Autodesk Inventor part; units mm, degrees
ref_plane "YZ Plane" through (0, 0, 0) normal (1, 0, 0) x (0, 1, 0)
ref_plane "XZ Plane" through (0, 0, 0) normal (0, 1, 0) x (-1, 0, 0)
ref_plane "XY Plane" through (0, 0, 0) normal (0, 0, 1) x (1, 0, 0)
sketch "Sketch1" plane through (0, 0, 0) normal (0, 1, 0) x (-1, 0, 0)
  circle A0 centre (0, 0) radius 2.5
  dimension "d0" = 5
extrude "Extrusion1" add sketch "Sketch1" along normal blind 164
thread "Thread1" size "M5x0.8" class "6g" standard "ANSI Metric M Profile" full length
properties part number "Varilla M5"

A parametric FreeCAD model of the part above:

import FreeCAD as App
import Part
import Sketcher

V = App.Vector

doc = App.newDocument("Part")
params = doc.addObject("Spreadsheet::Sheet", "Params")
for row, (alias, value) in enumerate([
    ("sketch1_diameter", "5 mm"),
    ("pad1_length", "164 mm"),
], start=1):
    params.set(f"A{row}", alias)
    params.set(f"B{row}", "=" + value)
    params.setAlias(f"B{row}", alias)

body = doc.addObject("PartDesign::Body", "Body")

sketch1 = body.newObject("Sketcher::SketchObject", "Sketch")
sketch1.AttachmentSupport = (doc.getObject("XZ_Plane"), [""])
sketch1.MapMode = "FlatFace"
sketch1.addGeometry(Part.Circle(V(0, 0, 0), V(0, 0, 1), 2.5), False)
sketch1.addConstraint([
    Sketcher.Constraint("Coincident", 0, 3, -1, 1),
    Sketcher.Constraint("Diameter", 0, 5.0),
])
sketch1.setExpression("Constraints[1]", "Params.sketch1_diameter")
pad1 = body.newObject("PartDesign::Pad", "Pad")
pad1.Profile = sketch1
pad1.setExpression("Length", "Params.pad1_length")
pad1.Reversed = True

doc.recompute()
